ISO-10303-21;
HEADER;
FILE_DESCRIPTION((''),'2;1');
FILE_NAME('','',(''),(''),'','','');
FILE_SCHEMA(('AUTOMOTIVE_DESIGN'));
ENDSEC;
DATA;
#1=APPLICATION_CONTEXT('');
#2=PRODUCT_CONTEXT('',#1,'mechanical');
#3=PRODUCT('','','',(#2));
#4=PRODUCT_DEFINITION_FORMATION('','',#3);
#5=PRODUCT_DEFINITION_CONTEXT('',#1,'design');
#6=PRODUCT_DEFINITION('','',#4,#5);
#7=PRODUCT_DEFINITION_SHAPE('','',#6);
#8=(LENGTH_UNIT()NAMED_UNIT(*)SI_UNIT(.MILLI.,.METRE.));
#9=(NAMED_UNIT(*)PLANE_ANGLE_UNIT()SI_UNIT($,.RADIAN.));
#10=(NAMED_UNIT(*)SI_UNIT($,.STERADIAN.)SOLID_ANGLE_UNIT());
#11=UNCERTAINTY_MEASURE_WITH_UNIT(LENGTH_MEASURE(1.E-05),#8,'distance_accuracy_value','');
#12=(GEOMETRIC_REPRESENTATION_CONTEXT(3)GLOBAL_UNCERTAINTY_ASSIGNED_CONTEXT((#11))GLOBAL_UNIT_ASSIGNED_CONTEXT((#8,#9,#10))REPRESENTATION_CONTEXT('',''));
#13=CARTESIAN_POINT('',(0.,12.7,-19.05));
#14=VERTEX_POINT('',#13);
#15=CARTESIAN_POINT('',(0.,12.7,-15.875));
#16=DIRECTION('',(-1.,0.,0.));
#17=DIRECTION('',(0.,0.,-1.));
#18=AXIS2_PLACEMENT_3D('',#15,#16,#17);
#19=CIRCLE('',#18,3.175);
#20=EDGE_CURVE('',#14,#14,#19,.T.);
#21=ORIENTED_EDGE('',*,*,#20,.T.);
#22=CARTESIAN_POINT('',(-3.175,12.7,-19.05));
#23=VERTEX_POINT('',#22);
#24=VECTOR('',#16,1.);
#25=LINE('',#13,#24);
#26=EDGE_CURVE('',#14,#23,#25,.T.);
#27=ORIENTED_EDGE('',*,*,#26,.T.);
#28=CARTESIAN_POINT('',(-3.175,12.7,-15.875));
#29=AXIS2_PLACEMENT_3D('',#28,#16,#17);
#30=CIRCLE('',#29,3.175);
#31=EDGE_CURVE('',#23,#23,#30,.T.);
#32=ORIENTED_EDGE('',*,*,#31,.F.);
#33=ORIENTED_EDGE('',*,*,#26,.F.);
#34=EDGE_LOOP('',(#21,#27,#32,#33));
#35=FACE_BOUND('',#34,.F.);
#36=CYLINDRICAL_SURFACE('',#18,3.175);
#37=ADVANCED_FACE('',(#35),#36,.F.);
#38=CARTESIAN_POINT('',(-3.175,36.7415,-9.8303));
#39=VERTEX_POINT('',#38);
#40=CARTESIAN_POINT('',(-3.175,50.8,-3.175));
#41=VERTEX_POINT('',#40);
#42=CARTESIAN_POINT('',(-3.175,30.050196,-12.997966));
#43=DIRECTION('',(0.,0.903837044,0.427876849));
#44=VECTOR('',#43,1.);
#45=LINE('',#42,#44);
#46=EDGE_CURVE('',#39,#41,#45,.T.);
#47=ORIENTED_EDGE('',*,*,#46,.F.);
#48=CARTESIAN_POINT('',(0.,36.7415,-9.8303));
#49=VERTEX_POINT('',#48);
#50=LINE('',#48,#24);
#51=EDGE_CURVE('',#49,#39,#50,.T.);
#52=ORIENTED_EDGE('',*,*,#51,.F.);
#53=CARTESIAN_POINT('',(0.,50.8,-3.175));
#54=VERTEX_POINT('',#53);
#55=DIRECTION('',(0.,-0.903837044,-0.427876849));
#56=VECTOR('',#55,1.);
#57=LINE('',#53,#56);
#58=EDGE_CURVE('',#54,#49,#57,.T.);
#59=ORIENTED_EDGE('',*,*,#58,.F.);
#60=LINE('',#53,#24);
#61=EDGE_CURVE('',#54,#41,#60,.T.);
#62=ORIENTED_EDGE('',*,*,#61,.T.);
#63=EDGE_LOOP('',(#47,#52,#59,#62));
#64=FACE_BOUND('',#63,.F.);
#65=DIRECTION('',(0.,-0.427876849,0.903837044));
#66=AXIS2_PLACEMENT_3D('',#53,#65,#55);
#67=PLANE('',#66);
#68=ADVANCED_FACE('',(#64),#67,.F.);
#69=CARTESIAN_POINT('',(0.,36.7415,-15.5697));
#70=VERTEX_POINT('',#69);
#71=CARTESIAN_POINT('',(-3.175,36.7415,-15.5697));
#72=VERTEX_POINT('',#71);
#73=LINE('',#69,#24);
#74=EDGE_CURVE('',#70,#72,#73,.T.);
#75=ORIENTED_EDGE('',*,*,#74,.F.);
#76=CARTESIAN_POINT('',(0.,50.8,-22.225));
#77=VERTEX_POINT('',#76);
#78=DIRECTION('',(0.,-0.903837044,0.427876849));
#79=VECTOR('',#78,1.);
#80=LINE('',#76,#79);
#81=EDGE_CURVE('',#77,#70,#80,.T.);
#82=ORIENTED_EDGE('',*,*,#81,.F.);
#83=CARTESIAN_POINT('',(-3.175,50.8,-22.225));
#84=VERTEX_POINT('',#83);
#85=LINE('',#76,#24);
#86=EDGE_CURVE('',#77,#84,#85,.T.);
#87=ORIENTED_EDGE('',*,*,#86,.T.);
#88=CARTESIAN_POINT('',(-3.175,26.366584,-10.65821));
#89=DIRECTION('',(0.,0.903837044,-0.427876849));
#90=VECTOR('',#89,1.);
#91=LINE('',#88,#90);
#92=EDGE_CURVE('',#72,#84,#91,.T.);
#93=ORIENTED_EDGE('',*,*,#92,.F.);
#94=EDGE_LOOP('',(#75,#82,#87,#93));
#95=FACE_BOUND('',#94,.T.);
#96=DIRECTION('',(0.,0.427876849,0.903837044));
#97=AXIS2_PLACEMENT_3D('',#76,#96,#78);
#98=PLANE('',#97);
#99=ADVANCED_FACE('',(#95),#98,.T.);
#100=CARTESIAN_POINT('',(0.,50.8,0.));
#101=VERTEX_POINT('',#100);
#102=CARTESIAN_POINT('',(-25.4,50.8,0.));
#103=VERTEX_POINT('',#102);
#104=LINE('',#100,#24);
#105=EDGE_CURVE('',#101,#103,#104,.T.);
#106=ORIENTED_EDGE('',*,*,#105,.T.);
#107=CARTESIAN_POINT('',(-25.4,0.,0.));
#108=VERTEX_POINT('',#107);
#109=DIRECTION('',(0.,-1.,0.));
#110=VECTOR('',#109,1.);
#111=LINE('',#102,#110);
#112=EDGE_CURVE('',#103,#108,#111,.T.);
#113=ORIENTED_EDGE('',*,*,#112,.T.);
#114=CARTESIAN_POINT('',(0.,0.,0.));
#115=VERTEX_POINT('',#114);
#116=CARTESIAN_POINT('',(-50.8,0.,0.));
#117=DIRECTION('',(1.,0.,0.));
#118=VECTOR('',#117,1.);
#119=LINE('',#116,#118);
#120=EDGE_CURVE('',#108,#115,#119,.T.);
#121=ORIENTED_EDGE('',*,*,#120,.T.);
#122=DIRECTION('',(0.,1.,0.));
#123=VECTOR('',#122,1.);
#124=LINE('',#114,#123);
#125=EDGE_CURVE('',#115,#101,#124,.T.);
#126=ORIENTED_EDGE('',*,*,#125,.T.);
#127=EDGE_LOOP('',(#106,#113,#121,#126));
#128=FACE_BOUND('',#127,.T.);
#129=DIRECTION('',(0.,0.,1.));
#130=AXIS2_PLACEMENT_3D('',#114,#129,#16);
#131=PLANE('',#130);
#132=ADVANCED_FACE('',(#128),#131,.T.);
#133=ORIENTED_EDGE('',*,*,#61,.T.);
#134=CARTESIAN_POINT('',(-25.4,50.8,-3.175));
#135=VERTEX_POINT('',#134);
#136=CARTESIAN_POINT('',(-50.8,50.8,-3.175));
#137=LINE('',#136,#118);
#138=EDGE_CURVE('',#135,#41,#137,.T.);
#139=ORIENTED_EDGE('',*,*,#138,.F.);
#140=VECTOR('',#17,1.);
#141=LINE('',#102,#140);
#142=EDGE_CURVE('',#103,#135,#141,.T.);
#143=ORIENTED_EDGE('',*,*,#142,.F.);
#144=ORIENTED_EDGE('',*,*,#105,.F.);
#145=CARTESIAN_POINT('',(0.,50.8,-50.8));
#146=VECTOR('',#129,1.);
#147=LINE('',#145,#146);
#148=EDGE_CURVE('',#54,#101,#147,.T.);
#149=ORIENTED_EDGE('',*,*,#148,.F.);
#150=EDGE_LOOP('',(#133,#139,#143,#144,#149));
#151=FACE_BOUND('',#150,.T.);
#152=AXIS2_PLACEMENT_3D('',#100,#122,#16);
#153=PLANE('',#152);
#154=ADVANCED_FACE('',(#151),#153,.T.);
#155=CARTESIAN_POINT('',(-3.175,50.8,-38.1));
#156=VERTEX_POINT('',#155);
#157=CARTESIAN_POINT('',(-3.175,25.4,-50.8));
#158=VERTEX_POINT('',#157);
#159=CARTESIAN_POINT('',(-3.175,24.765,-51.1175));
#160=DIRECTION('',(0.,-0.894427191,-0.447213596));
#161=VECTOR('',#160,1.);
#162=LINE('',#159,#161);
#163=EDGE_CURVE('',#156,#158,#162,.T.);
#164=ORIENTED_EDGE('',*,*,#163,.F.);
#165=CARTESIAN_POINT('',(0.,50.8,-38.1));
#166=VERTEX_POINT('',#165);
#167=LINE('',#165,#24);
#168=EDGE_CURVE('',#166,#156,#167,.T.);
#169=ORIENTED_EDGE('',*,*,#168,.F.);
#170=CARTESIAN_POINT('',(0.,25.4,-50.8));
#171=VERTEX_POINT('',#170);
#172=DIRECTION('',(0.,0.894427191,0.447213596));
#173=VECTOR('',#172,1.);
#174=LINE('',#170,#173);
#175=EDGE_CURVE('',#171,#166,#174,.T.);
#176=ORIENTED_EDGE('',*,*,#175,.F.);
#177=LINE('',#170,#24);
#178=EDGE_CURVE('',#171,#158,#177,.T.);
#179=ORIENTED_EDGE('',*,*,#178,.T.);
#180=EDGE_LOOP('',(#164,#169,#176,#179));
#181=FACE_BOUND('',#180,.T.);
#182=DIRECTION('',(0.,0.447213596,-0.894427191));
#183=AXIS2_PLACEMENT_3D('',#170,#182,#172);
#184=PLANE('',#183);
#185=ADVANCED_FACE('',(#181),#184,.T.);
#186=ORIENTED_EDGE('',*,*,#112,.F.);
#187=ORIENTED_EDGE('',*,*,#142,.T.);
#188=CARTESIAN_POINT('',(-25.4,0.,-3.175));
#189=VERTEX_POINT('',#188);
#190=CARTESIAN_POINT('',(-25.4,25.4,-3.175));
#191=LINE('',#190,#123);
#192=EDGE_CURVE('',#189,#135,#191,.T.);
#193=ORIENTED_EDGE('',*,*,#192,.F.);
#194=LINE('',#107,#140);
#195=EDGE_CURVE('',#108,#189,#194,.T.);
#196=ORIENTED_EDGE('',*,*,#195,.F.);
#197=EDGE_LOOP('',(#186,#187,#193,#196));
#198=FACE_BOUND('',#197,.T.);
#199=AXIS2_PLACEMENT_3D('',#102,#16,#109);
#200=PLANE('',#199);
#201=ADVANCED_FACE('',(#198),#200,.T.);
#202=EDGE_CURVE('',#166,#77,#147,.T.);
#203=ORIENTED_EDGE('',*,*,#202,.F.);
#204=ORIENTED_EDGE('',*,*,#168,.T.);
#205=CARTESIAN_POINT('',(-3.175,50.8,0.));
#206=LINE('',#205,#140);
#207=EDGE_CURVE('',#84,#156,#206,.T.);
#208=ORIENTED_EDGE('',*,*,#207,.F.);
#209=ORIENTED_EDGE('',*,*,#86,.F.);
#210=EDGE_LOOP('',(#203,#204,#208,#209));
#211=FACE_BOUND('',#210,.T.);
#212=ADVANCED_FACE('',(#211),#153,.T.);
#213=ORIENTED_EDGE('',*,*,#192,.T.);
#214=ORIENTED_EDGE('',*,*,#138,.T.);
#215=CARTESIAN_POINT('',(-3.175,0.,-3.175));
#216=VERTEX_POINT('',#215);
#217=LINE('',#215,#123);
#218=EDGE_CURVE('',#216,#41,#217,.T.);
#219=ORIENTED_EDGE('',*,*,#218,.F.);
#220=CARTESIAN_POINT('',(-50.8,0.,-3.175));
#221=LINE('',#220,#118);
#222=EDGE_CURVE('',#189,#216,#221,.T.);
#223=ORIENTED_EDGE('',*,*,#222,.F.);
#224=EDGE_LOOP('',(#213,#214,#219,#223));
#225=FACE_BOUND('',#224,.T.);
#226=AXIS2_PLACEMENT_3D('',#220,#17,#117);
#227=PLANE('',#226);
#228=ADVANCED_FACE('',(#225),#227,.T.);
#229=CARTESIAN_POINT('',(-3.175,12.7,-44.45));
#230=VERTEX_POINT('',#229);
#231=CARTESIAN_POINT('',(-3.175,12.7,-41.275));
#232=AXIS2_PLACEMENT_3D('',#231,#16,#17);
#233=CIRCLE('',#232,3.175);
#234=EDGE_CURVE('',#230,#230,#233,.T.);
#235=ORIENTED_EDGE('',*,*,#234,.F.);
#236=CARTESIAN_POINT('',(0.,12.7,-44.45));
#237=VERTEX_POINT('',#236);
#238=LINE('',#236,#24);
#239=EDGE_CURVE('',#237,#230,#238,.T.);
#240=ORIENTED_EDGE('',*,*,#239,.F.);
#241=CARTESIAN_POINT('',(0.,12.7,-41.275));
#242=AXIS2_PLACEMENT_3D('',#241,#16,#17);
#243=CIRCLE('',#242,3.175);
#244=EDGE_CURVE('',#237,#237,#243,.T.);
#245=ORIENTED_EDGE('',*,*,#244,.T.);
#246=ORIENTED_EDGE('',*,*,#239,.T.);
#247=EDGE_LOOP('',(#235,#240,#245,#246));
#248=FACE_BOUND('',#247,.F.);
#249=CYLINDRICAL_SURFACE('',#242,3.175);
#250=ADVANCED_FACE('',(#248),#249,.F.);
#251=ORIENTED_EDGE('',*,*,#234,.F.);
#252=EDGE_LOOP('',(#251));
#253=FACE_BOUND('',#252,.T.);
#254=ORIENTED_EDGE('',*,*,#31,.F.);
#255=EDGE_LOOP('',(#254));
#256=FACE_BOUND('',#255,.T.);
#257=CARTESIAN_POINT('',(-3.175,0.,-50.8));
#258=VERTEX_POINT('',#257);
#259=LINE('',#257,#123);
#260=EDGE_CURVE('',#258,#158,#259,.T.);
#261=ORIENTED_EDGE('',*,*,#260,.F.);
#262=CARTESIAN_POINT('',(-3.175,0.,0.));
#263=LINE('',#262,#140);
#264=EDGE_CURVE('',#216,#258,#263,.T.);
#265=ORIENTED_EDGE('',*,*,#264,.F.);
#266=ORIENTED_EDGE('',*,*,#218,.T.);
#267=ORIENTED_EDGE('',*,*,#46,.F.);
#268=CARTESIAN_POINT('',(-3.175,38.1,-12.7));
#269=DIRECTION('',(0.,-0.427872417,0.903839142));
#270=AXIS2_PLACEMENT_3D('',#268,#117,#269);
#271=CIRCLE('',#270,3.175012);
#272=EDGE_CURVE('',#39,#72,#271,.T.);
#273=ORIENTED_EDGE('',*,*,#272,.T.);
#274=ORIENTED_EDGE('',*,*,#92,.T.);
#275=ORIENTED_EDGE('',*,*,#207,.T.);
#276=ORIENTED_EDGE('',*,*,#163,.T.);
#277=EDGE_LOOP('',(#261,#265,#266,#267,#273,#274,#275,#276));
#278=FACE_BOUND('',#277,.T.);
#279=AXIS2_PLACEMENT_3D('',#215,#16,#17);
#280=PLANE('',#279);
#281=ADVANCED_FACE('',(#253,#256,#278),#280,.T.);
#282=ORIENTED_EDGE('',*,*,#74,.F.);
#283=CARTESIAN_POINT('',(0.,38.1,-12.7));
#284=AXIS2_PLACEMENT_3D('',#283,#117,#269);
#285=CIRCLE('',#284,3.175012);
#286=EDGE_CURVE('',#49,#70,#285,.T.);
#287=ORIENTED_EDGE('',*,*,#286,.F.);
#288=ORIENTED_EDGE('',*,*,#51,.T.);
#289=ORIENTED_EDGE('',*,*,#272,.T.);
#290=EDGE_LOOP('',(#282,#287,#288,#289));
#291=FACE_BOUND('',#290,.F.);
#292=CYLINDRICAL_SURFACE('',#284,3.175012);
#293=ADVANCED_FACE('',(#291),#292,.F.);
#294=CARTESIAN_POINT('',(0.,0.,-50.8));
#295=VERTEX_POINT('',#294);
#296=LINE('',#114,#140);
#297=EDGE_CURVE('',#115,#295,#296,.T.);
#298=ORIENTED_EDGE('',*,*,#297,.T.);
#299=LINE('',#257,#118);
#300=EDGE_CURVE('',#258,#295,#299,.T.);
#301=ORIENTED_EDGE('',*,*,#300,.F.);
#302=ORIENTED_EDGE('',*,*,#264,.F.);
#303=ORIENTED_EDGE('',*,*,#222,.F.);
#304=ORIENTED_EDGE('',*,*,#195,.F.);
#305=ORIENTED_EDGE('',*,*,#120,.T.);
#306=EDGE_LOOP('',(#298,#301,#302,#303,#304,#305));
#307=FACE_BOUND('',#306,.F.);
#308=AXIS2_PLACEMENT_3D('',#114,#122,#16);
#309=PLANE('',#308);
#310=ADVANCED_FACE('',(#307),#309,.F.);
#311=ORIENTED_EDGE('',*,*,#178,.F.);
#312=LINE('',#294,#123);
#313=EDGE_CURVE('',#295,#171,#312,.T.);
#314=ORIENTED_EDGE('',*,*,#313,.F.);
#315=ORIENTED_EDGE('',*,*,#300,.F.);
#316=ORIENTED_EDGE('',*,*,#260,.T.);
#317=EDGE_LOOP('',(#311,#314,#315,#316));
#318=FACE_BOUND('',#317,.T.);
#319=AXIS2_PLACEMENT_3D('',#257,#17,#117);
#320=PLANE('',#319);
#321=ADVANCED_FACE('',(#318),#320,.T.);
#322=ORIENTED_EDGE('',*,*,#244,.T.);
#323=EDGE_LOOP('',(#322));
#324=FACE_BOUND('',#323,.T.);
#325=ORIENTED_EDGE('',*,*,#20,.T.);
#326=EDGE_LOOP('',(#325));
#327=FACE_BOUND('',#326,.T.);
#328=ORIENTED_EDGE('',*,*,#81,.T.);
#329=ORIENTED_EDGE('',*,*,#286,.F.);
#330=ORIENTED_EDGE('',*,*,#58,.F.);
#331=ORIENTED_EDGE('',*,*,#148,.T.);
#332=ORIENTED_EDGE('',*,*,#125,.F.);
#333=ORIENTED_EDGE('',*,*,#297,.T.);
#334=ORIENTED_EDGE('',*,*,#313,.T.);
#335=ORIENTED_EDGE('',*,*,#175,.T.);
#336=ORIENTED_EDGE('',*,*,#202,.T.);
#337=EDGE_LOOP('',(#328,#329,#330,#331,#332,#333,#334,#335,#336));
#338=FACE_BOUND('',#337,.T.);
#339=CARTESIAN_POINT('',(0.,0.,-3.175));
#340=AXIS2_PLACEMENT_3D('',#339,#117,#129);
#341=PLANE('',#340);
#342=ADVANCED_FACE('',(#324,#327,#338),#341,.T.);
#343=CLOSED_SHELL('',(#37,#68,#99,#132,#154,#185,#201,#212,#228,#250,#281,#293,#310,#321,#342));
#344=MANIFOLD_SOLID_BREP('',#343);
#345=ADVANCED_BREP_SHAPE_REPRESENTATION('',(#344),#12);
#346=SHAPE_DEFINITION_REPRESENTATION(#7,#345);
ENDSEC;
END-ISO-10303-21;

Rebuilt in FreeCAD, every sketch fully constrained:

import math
import FreeCAD as App
import Part
import Sketcher
Q = App.Units.Quantity

doc = App.newDocument("Part")
body = doc.addObject("PartDesign::Body", "Body")

sketch1 = doc.addObject("Sketcher::SketchObject", "Sketch")
body.addObject(sketch1)
sketch1.AttachmentSupport = (doc.XZ_Plane, [""])
sketch1.MapMode = "FlatFace"
sketch1.addGeometry([
    Part.LineSegment(App.Vector(0, 0, 0), App.Vector(0, -50.8, 0)),
    Part.LineSegment(App.Vector(0, -50.8, 0), App.Vector(-3.175, -50.8, 0)),
    Part.LineSegment(App.Vector(-3.175, -50.8, 0), App.Vector(-3.175, -3.175, 0)),
    Part.LineSegment(App.Vector(-3.175, -3.175, 0), App.Vector(-50.8, -3.175, 0)),
    Part.LineSegment(App.Vector(-50.8, -3.175, 0), App.Vector(-50.8, 0, 0)),
    Part.LineSegment(App.Vector(-50.8, 0, 0), App.Vector(0, 0, 0)),
], False)
sketch1.addConstraint([
    Sketcher.Constraint("Coincident", 0, 2, 1, 1),
    Sketcher.Constraint("Coincident", 1, 2, 2, 1),
    Sketcher.Constraint("Coincident", 2, 2, 3, 1),
    Sketcher.Constraint("Coincident", 3, 2, 4, 1),
    Sketcher.Constraint("Coincident", 4, 2, 5, 1),
    Sketcher.Constraint("Coincident", 5, 2, 0, 1),
    Sketcher.Constraint("Vertical", 0),
    Sketcher.Constraint("Horizontal", 1),
    Sketcher.Constraint("Vertical", 2),
    Sketcher.Constraint("Horizontal", 3),
    Sketcher.Constraint("Vertical", 4),
    Sketcher.Constraint("Horizontal", 5),
    Sketcher.Constraint("Coincident", 5, 2, -1, 1),
    Sketcher.Constraint("Equal", 5, 0),
    Sketcher.Constraint("Equal", 3, 2),
    Sketcher.Constraint("DistanceX", 5, 1, 5, 2, Q("2 in")),
    Sketcher.Constraint("DistanceX", 1, 2, 1, 1, Q("0.125 in")),
])
pad1 = doc.addObject("PartDesign::Pad", "Pad")
body.addObject(pad1)
pad1.Profile = sketch1
pad1.Length = Q("2 in")
pad1.Reversed = True

sketch2 = doc.addObject("Sketcher::SketchObject", "Sketch001")
body.addObject(sketch2)
sketch2.AttachmentSupport = (doc.XY_Plane, [""])
sketch2.MapMode = "FlatFace"
sketch2.addGeometry([
    Part.LineSegment(App.Vector(-25.4, 50.8, 0), App.Vector(-50.8, 50.8, 0)),
    Part.LineSegment(App.Vector(-50.8, 50.8, 0), App.Vector(-50.8, 0, 0)),
    Part.LineSegment(App.Vector(-50.8, 0, 0), App.Vector(-25.4, 0, 0)),
    Part.LineSegment(App.Vector(-25.4, 0, 0), App.Vector(-25.4, 50.8, 0)),
], False)
sketch2.addConstraint([
    Sketcher.Constraint("Coincident", 0, 2, 1, 1),
    Sketcher.Constraint("Coincident", 1, 2, 2, 1),
    Sketcher.Constraint("Coincident", 2, 2, 3, 1),
    Sketcher.Constraint("Coincident", 3, 2, 0, 1),
    Sketcher.Constraint("Horizontal", 0),
    Sketcher.Constraint("Vertical", 1),
    Sketcher.Constraint("Horizontal", 2),
    Sketcher.Constraint("Vertical", 3),
    Sketcher.Constraint("PointOnObject", 1, 2, -1),
    Sketcher.Constraint("DistanceX", 0, 2, 0, 1, Q("1 in")),
    Sketcher.Constraint("DistanceY", 1, 2, 1, 1, Q("2 in")),
    Sketcher.Constraint("DistanceX", 0, 2, -1, 1, Q("2 in")),
])
pocket1 = doc.addObject("PartDesign::Pocket", "Pocket")
body.addObject(pocket1)
pocket1.Profile = sketch2
pocket1.Length = Q("2 in")

sketch3 = doc.addObject("Sketcher::SketchObject", "Sketch002")
body.addObject(sketch3)
sketch3.AttachmentSupport = (doc.YZ_Plane, [""])
sketch3.MapMode = "FlatFace"
sketch3.addGeometry([
    Part.LineSegment(App.Vector(50.8, -22.225, 0), App.Vector(50.8, -3.175, 0)),
    Part.LineSegment(App.Vector(50.8, -3.175, 0), App.Vector(36.7415, -9.8303, 0)),
    Part.ArcOfCircle(Part.Circle(App.Vector(38.1, -12.7, 0), App.Vector(0, 0, 1), 3.175012), math.radians(115.332614), math.radians(244.667386)),
    Part.LineSegment(App.Vector(36.7415, -15.5697, 0), App.Vector(50.8, -22.225, 0)),
], False)
sketch3.addConstraint([
    Sketcher.Constraint("Coincident", 0, 2, 1, 1),
    Sketcher.Constraint("Tangent", 1, 2, 2, 1),
    Sketcher.Constraint("Tangent", 2, 2, 3, 1),
    Sketcher.Constraint("Coincident", 3, 2, 0, 1),
    Sketcher.Constraint("Vertical", 0),
    Sketcher.Constraint("Vertical", 1, 2, 2, 2),
    Sketcher.Constraint("Radius", 2, Q("0.125 in")),
    Sketcher.Constraint("DistanceY", 0, 1, 0, 2, Q("0.75 in")),
    Sketcher.Constraint("DistanceY", 2, 3, -1, 1, Q("0.5 in")),
    Sketcher.Constraint("DistanceX", 2, 3, 0, 2, Q("0.5 in")),
    Sketcher.Constraint("DistanceX", -1, 1, 0, 2, Q("2 in")),
])
pocket2 = doc.addObject("PartDesign::Pocket", "Pocket001")
body.addObject(pocket2)
pocket2.Profile = sketch3
pocket2.Length = Q("2 in")

sketch4 = doc.addObject("Sketcher::SketchObject", "Sketch003")
body.addObject(sketch4)
sketch4.AttachmentSupport = (doc.YZ_Plane, [""])
sketch4.MapMode = "FlatFace"
sketch4.addGeometry([
    Part.LineSegment(App.Vector(25.4, -50.8, 0), App.Vector(50.8, -50.8, 0)),
    Part.LineSegment(App.Vector(50.8, -50.8, 0), App.Vector(50.8, -38.1, 0)),
    Part.LineSegment(App.Vector(50.8, -38.1, 0), App.Vector(25.4, -50.8, 0)),
], False)
sketch4.addConstraint([
    Sketcher.Constraint("Coincident", 0, 2, 1, 1),
    Sketcher.Constraint("Coincident", 1, 2, 2, 1),
    Sketcher.Constraint("Coincident", 2, 2, 0, 1),
    Sketcher.Constraint("Horizontal", 0),
    Sketcher.Constraint("Vertical", 1),
    Sketcher.Constraint("DistanceX", 0, 1, 0, 2, Q("1 in")),
    Sketcher.Constraint("DistanceY", 1, 1, 1, 2, Q("0.5 in")),
    Sketcher.Constraint("DistanceX", -1, 1, 2, 2, Q("1 in")),
    Sketcher.Constraint("DistanceY", 0, 2, -1, 1, Q("2 in")),
])
pocket3 = doc.addObject("PartDesign::Pocket", "Pocket002")
body.addObject(pocket3)
pocket3.Profile = sketch4
pocket3.Length = Q("2 in")

sketch5 = doc.addObject("Sketcher::SketchObject", "Sketch004")
body.addObject(sketch5)
sketch5.AttachmentSupport = (doc.YZ_Plane, [""])
sketch5.MapMode = "FlatFace"
sketch5.addGeometry([
    Part.Circle(App.Vector(12.7, -15.875, 0), App.Vector(0, 0, 1), 3.175),
    Part.Circle(App.Vector(12.7, -41.275, 0), App.Vector(0, 0, 1), 3.175),
], False)
sketch5.addConstraint([
    Sketcher.Constraint("Equal", 0, 1),
    Sketcher.Constraint("Vertical", 0, 3, 1, 3),
    Sketcher.Constraint("Diameter", 0, Q("0.25 in")),
    Sketcher.Constraint("DistanceY", 1, 3, 0, 3, Q("1 in")),
    Sketcher.Constraint("DistanceX", -1, 1, 0, 3, Q("0.5 in")),
    Sketcher.Constraint("DistanceY", 0, 3, -1, 1, Q("0.625 in")),
])
doc.recompute()
hole = doc.addObject("PartDesign::Hole", "Hole")
body.addObject(hole)
hole.Profile = sketch5
hole.ThreadType = "None"
hole.Diameter = Q("0.25 in")
hole.DepthType = "ThroughAll"

doc.recompute()
